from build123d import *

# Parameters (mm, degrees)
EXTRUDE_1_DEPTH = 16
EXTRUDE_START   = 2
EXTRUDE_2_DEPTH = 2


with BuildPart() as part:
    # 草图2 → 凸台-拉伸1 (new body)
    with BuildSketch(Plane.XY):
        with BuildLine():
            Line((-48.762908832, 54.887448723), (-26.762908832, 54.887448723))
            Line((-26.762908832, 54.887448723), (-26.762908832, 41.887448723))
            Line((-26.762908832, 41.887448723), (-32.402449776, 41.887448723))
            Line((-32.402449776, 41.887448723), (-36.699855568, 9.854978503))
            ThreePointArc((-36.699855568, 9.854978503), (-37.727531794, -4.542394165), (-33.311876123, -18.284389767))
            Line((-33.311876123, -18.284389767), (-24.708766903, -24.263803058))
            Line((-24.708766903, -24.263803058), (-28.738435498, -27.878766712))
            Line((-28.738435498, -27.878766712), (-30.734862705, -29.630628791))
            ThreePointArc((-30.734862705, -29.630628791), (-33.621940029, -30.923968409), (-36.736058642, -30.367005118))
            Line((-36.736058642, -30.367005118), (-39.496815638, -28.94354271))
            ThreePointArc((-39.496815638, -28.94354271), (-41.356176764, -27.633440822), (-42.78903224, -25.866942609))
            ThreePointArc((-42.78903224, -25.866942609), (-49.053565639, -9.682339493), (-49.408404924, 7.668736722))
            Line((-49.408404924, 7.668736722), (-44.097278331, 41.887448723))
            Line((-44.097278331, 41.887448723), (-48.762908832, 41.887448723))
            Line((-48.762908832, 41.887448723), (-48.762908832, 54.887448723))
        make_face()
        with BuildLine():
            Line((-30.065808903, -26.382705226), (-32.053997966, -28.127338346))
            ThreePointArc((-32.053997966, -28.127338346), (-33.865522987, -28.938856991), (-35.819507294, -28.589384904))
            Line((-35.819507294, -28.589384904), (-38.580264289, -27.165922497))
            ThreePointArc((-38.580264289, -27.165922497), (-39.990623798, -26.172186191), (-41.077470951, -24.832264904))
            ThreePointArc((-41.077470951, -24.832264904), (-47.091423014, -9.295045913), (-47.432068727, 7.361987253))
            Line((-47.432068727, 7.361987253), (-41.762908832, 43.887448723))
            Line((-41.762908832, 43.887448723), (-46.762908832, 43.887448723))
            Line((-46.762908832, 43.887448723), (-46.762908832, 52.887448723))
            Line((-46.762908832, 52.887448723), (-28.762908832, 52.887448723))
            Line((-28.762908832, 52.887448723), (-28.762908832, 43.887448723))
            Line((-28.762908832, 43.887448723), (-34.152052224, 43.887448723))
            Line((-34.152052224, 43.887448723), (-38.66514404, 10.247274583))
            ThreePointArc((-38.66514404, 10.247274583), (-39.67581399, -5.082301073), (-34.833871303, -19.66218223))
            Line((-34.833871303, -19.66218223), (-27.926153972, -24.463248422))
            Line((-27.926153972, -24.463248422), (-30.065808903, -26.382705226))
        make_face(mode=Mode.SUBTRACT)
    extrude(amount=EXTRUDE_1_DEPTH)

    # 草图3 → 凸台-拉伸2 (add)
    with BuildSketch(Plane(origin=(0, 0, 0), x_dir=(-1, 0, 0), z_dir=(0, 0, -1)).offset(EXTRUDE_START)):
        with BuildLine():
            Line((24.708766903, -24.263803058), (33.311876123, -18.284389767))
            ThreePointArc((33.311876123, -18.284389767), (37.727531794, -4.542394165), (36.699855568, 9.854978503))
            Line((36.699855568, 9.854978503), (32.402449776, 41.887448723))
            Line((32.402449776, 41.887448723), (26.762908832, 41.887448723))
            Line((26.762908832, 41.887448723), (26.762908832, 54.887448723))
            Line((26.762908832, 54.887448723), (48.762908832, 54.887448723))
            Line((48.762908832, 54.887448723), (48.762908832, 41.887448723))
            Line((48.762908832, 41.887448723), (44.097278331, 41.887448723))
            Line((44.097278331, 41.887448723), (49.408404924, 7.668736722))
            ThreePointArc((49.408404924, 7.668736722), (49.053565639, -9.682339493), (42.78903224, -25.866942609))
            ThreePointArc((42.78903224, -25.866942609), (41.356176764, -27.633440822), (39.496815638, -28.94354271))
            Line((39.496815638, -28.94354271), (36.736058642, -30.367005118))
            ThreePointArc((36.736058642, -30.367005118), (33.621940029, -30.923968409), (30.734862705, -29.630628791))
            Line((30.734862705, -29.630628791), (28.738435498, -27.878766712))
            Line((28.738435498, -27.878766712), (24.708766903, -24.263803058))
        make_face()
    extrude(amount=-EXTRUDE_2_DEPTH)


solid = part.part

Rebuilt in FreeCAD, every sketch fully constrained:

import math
import FreeCAD as App
import Part
import Sketcher

doc = App.newDocument("Part")
body = doc.addObject("PartDesign::Body", "Body")

# Sketch on XY plane
sketch1 = body.newObject("Sketcher::SketchObject", "Sketch")
sketch1.AttachmentSupport = (doc.getObject("XY_Plane"), [""])
sketch1.MapMode = "FlatFace"
sketch1.addGeometry([
    Part.LineSegment(App.Vector(-26.8, 54.9, 0), App.Vector(-48.8, 54.9, 0)),  # 0
    Part.LineSegment(App.Vector(-48.8, 54.9, 0), App.Vector(-48.8, 41.9, 0)),  # 1
    Part.LineSegment(App.Vector(-48.8, 41.9, 0), App.Vector(-44.1, 41.9, 0)),  # 2
    Part.LineSegment(App.Vector(-44.1, 41.9, 0), App.Vector(-49.4, 7.7, 0)),  # 3
    Part.ArcOfCircle(Part.Circle(App.Vector(0, 0, 0), App.Vector(0, 0, 1), 50), math.radians(171), math.radians(211)),  # 4
    Part.ArcOfCircle(Part.Circle(App.Vector(-35.7, -21.6, 0), App.Vector(0, 0, 1), 8.3), math.radians(-149), math.radians(-117)),  # 5
    Part.LineSegment(App.Vector(-39.5, -28.9, 0), App.Vector(-36.7, -30.4, 0)),  # 6
    Part.ArcOfCircle(Part.Circle(App.Vector(-34.3, -25.6, 0), App.Vector(0, 0, 1), 5.4), math.radians(-117), math.radians(-49)),  # 7
    Part.LineSegment(App.Vector(-30.7, -29.6, 0), App.Vector(-28.7, -27.9, 0)),  # 8
    Part.LineSegment(App.Vector(-28.7, -27.9, 0), App.Vector(-24.7, -24.3, 0)),  # 9
    Part.LineSegment(App.Vector(-24.7, -24.3, 0), App.Vector(-33.3, -18.3, 0)),  # 10
    Part.ArcOfCircle(Part.Circle(App.Vector(0, 0, 0), App.Vector(0, 0, 1), 38), math.radians(165), math.radians(209)),  # 11
    Part.LineSegment(App.Vector(-36.7, 9.9, 0), App.Vector(-32.4, 41.9, 0)),  # 12
    Part.LineSegment(App.Vector(-32.4, 41.9, 0), App.Vector(-26.8, 41.9, 0)),  # 13
    Part.LineSegment(App.Vector(-26.8, 41.9, 0), App.Vector(-26.8, 54.9, 0)),  # 14
    Part.LineSegment(App.Vector(-30.1, -26.4, 0), App.Vector(-32.1, -28.1, 0)),  # 15
    Part.ArcOfCircle(Part.Circle(App.Vector(-34.3, -25.6, 0), App.Vector(0, 0, 1), 3.4), math.radians(-117), math.radians(-49)),  # 16
    Part.LineSegment(App.Vector(-35.8, -28.6, 0), App.Vector(-38.6, -27.2, 0)),  # 17
    Part.ArcOfCircle(Part.Circle(App.Vector(-35.7, -21.6, 0), App.Vector(0, 0, 1), 6.3), math.radians(-149), math.radians(-117)),  # 18
    Part.ArcOfCircle(Part.Circle(App.Vector(0, 0, 0), App.Vector(0, 0, 1), 48), math.radians(171), math.radians(211)),  # 19
    Part.LineSegment(App.Vector(-47.4, 7.4, 0), App.Vector(-41.8, 43.9, 0)),  # 20
    Part.LineSegment(App.Vector(-41.8, 43.9, 0), App.Vector(-46.8, 43.9, 0)),  # 21
    Part.LineSegment(App.Vector(-46.8, 43.9, 0), App.Vector(-46.8, 52.9, 0)),  # 22
    Part.LineSegment(App.Vector(-46.8, 52.9, 0), App.Vector(-28.8, 52.9, 0)),  # 23
    Part.LineSegment(App.Vector(-28.8, 52.9, 0), App.Vector(-28.8, 43.9, 0)),  # 24
    Part.LineSegment(App.Vector(-28.8, 43.9, 0), App.Vector(-34.2, 43.9, 0)),  # 25
    Part.LineSegment(App.Vector(-34.2, 43.9, 0), App.Vector(-38.7, 10.2, 0)),  # 26
    Part.ArcOfCircle(Part.Circle(App.Vector(0, 0, 0), App.Vector(0, 0, 1), 40), math.radians(165), math.radians(209)),  # 27
    Part.LineSegment(App.Vector(-34.8, -19.7, 0), App.Vector(-27.9, -24.5, 0)),  # 28
    Part.LineSegment(App.Vector(-27.9, -24.5, 0), App.Vector(-30.1, -26.4, 0)),  # 29
], False)
sketch1.addConstraint([
    Sketcher.Constraint("Coincident", 0, 2, 1, 1),
    Sketcher.Constraint("Coincident", 1, 2, 2, 1),
    Sketcher.Constraint("Coincident", 2, 2, 3, 1),
    Sketcher.Constraint("Tangent", 3, 2, 4, 1),
    Sketcher.Constraint("Tangent", 4, 2, 5, 1),
    Sketcher.Constraint("Tangent", 5, 2, 6, 1),
    Sketcher.Constraint("Tangent", 6, 2, 7, 1),
    Sketcher.Constraint("Tangent", 7, 2, 8, 1),
    Sketcher.Constraint("Coincident", 8, 2, 9, 1),
    Sketcher.Constraint("Coincident", 9, 2, 10, 1),
    Sketcher.Constraint("Coincident", 10, 2, 11, 2),
    Sketcher.Constraint("Coincident", 11, 1, 12, 1),
    Sketcher.Constraint("Coincident", 12, 2, 13, 1),
    Sketcher.Constraint("Coincident", 13, 2, 14, 1),
    Sketcher.Constraint("Coincident", 14, 2, 0, 1),
    Sketcher.Constraint("Tangent", 15, 2, 16, 2),
    Sketcher.Constraint("Tangent", 16, 1, 17, 1),
    Sketcher.Constraint("Tangent", 17, 2, 18, 2),
    Sketcher.Constraint("Tangent", 18, 1, 19, 2),
    Sketcher.Constraint("Tangent", 19, 1, 20, 1),
    Sketcher.Constraint("Coincident", 20, 2, 21, 1),
    Sketcher.Constraint("Coincident", 21, 2, 22, 1),
    Sketcher.Constraint("Coincident", 22, 2, 23, 1),
    Sketcher.Constraint("Coincident", 23, 2, 24, 1),
    Sketcher.Constraint("Coincident", 24, 2, 25, 1),
    Sketcher.Constraint("Coincident", 25, 2, 26, 1),
    Sketcher.Constraint("Coincident", 26, 2, 27, 1),
    Sketcher.Constraint("Coincident", 27, 2, 28, 1),
    Sketcher.Constraint("Coincident", 28, 2, 29, 1),
    Sketcher.Constraint("Coincident", 29, 2, 15, 1),
    Sketcher.Constraint("Horizontal", 0),
    Sketcher.Constraint("Vertical", 1),
    Sketcher.Constraint("Horizontal", 2),
    Sketcher.Constraint("Horizontal", 13),
    Sketcher.Constraint("Vertical", 14),
    Sketcher.Constraint("Horizontal", 21),
    Sketcher.Constraint("Vertical", 22),
    Sketcher.Constraint("Horizontal", 23),
    Sketcher.Constraint("Vertical", 24),
    Sketcher.Constraint("Horizontal", 25),
    Sketcher.Constraint("Coincident", 4, 3, -1, 1),
    Sketcher.Constraint("Coincident", 11, 3, -1, 1),
    Sketcher.Constraint("Coincident", 19, 3, -1, 1),
    Sketcher.Constraint("Coincident", 27, 3, -1, 1),
    Sketcher.Constraint("Coincident", 16, 3, 7, 3),
    Sketcher.Constraint("Coincident", 18, 3, 5, 3),
    Sketcher.Constraint("Parallel", 8, 15),
    Sketcher.Constraint("Parallel", 6, 17),
    Sketcher.Constraint("Parallel", 3, 20),
    Sketcher.Constraint("Parallel", 12, 26),
    Sketcher.Constraint("Parallel", 10, 28),
    Sketcher.Constraint("Parallel", 9, 29),
    Sketcher.Constraint("Horizontal", 2, 2, 12, 2),
    Sketcher.Constraint("Horizontal", 21, 2, 24, 2),
    Sketcher.Constraint("Radius", 4, 50.0),
    Sketcher.Constraint("Radius", 11, 38.0),
    Sketcher.Constraint("Radius", 19, 48.0),
    Sketcher.Constraint("Radius", 27, 40.0),
    Sketcher.Constraint("DistanceX", 0, 2, 0, 1, 22.0),
    Sketcher.Constraint("DistanceX", 21, 2, 21, 1, 5.0),
    Sketcher.Constraint("DistanceX", 23, 1, 23, 2, 18.0),
    Sketcher.Constraint("DistanceY", 1, 2, 1, 1, 13.0),
    Sketcher.Constraint("DistanceY", 22, 1, 22, 2, 9.0),
    Sketcher.Constraint("DistanceY", 2, 2, 20, 2, 2.0),
    Sketcher.Constraint("DistanceX", 1, 2, 20, 2, 7.0),
    Sketcher.Constraint("Radius", 7, 5.368548),
    Sketcher.Constraint("Radius", 5, 8.282202),
    Sketcher.Constraint("DistanceY", 16, 1, 7, 3, 2.994),
    Sketcher.Constraint("Distance", 20, 36.962802),
    Sketcher.Constraint("Distance", 28, 8.4123),
    Sketcher.Constraint("DistanceX", 2, 1, 2, 2, 4.665631),
    Sketcher.Constraint("DistanceX", 13, 1, 13, 2, 5.639541),
    Sketcher.Constraint("DistanceX", 5, 3, 7, 3, 1.4255),
    Sketcher.Constraint("Distance", 9, 5.413519),
    Sketcher.Constraint("Distance", 10, 10.476969),
    Sketcher.Constraint("Distance", 12, 32.31945),
    Sketcher.Constraint("DistanceX", 25, 2, 25, 1, 5.389143),
    Sketcher.Constraint("DistanceX", 6, 2, -1, 1, 36.736059),
    Sketcher.Constraint("DistanceY", 7, 2, -1, 1, 29.630629),
    Sketcher.Constraint("DistanceY", 10, 2, -1, 1, 18.28439),
    Sketcher.Constraint("DistanceY", 28, 2, -1, 1, 24.463248),
    Sketcher.Constraint("DistanceX", 29, 2, -1, 1, 30.065809),
])
pad1 = body.newObject("PartDesign::Pad", "Pad")
pad1.Profile = sketch1
pad1.Length = 16

# Sketch on XY plane
sketch2 = body.newObject("Sketcher::SketchObject", "Sketch001")
sketch2.AttachmentSupport = (doc.getObject("XY_Plane"), [""])
sketch2.MapMode = "FlatFace"
sketch2.AttachmentOffset = App.Placement(App.Vector(0, 0, -2), App.Rotation())
sketch2.addGeometry([
    Part.LineSegment(App.Vector(-33.3, -18.3, 0), App.Vector(-24.7, -24.3, 0)),  # 0
    Part.LineSegment(App.Vector(-24.7, -24.3, 0), App.Vector(-28.7, -27.9, 0)),  # 1
    Part.LineSegment(App.Vector(-28.7, -27.9, 0), App.Vector(-30.7, -29.6, 0)),  # 2
    Part.ArcOfCircle(Part.Circle(App.Vector(-34.3, -25.6, 0), App.Vector(0, 0, 1), 5.4), math.radians(-117), math.radians(-49)),  # 3
    Part.LineSegment(App.Vector(-36.7, -30.4, 0), App.Vector(-39.5, -28.9, 0)),  # 4
    Part.ArcOfCircle(Part.Circle(App.Vector(-35.7, -21.6, 0), App.Vector(0, 0, 1), 8.3), math.radians(-149), math.radians(-117)),  # 5
    Part.ArcOfCircle(Part.Circle(App.Vector(0, 0, 0), App.Vector(0, 0, 1), 50), math.radians(171), math.radians(211)),  # 6
    Part.LineSegment(App.Vector(-49.4, 7.7, 0), App.Vector(-44.1, 41.9, 0)),  # 7
    Part.LineSegment(App.Vector(-44.1, 41.9, 0), App.Vector(-48.8, 41.9, 0)),  # 8
    Part.LineSegment(App.Vector(-48.8, 41.9, 0), App.Vector(-48.8, 54.9, 0)),  # 9
    Part.LineSegment(App.Vector(-48.8, 54.9, 0), App.Vector(-26.8, 54.9, 0)),  # 10
    Part.LineSegment(App.Vector(-26.8, 54.9, 0), App.Vector(-26.8, 41.9, 0)),  # 11
    Part.LineSegment(App.Vector(-26.8, 41.9, 0), App.Vector(-32.4, 41.9, 0)),  # 12
    Part.LineSegment(App.Vector(-32.4, 41.9, 0), App.Vector(-36.7, 9.9, 0)),  # 13
    Part.ArcOfCircle(Part.Circle(App.Vector(0, 0, 0), App.Vector(0, 0, 1), 38), math.radians(165), math.radians(209)),  # 14
], False)
sketch2.addConstraint([
    Sketcher.Constraint("Coincident", 0, 2, 1, 1),
    Sketcher.Constraint("Coincident", 1, 2, 2, 1),
    Sketcher.Constraint("Tangent", 2, 2, 3, 2),
    Sketcher.Constraint("Tangent", 3, 1, 4, 1),
    Sketcher.Constraint("Tangent", 4, 2, 5, 2),
    Sketcher.Constraint("Tangent", 5, 1, 6, 2),
    Sketcher.Constraint("Tangent", 6, 1, 7, 1),
    Sketcher.Constraint("Coincident", 7, 2, 8, 1),
    Sketcher.Constraint("Coincident", 8, 2, 9, 1),
    Sketcher.Constraint("Coincident", 9, 2, 10, 1),
    Sketcher.Constraint("Coincident", 10, 2, 11, 1),
    Sketcher.Constraint("Coincident", 11, 2, 12, 1),
    Sketcher.Constraint("Coincident", 12, 2, 13, 1),
    Sketcher.Constraint("Coincident", 13, 2, 14, 1),
    Sketcher.Constraint("Coincident", 14, 2, 0, 1),
    Sketcher.Constraint("Horizontal", 8),
    Sketcher.Constraint("Vertical", 9),
    Sketcher.Constraint("Horizontal", 10),
    Sketcher.Constraint("Vertical", 11),
    Sketcher.Constraint("Horizontal", 12),
    Sketcher.Constraint("Coincident", 6, 3, -1, 1),
    Sketcher.Constraint("Coincident", 14, 3, -1, 1),
    Sketcher.Constraint("Horizontal", 8, 2, 11, 2),
    Sketcher.Constraint("Radius", 6, 50.0),
    Sketcher.Constraint("Radius", 14, 38.0),
    Sketcher.Constraint("DistanceX", 10, 1, 10, 2, 22.0),
    Sketcher.Constraint("DistanceY", 9, 1, 9, 2, 13.0),
    Sketcher.Constraint("Radius", 3, 5.368548),
    Sketcher.Constraint("Radius", 5, 8.282202),
    Sketcher.Constraint("DistanceX", 8, 2, 8, 1, 4.665631),
    Sketcher.Constraint("DistanceX", 12, 2, 12, 1, 5.639541),
    Sketcher.Constraint("DistanceX", 5, 3, 3, 3, 1.4255),
    Sketcher.Constraint("DistanceY", 4, 2, 5, 1, 3.0766),
    Sketcher.Constraint("Distance", 0, 10.476969),
    Sketcher.Constraint("Distance", 1, 5.413519),
    Sketcher.Constraint("Distance", 13, 32.31945),
    Sketcher.Constraint("DistanceY", 2, 2, -1, 1, 29.630629),
    Sketcher.Constraint("DistanceX", 3, 1, -1, 1, 36.736059),
    Sketcher.Constraint("DistanceX", 7, 2, -1, 1, 44.097278),
    Sketcher.Constraint("DistanceY", -1, 1, 7, 2, 41.887449),
    Sketcher.Constraint("DistanceY", 14, 2, -1, 1, 18.28439),
    Sketcher.Constraint("DistanceY", 3, 3, 0, 2, 1.331582),
])
pad2 = body.newObject("PartDesign::Pad", "Pad001")
pad2.Profile = sketch2
pad2.Length = 2

doc.recompute()
